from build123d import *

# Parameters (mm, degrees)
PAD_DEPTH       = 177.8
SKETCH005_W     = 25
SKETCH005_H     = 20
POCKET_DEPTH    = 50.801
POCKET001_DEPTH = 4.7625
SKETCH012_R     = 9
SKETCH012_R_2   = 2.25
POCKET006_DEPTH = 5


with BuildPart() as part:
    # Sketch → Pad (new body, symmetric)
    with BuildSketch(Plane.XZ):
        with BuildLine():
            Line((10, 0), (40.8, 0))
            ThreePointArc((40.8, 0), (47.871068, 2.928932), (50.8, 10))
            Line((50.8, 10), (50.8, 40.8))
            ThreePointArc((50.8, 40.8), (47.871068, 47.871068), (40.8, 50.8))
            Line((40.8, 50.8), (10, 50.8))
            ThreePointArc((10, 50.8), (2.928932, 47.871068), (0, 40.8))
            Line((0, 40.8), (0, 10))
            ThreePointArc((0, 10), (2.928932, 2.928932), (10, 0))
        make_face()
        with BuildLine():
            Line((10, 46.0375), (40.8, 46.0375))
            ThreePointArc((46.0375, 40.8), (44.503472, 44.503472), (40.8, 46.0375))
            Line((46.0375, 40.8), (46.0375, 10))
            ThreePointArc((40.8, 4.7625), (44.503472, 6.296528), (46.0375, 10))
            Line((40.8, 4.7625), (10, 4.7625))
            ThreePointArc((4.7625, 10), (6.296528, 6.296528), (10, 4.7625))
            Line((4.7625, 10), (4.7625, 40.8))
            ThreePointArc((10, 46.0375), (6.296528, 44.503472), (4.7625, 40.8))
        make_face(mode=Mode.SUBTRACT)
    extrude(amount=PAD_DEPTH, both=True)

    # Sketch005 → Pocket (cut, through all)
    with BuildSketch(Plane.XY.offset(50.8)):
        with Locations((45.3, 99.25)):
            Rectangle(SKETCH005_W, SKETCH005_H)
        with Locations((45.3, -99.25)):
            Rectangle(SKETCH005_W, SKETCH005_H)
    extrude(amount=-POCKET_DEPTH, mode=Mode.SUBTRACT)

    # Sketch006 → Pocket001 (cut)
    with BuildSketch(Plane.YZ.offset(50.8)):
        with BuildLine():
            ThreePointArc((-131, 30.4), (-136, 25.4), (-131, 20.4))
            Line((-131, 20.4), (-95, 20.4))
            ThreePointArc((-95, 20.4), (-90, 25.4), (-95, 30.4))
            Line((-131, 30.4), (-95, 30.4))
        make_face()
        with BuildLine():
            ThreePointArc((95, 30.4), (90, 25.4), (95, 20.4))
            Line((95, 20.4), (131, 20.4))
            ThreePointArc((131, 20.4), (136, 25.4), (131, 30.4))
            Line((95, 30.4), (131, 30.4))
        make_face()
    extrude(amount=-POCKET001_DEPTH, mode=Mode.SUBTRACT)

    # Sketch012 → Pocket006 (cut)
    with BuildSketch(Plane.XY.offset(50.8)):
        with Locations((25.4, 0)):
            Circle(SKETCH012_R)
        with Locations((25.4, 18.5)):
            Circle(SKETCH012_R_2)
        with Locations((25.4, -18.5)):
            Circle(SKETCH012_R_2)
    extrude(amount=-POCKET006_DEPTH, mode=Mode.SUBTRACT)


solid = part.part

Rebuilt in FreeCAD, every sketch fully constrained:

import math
import FreeCAD as App
import Part
import Sketcher
from FreeCAD import Vector
Q = App.Units.Quantity

doc = App.newDocument("Part")
params = doc.addObject("Spreadsheet::Sheet", "Params")
for row, (alias, value) in enumerate([
    ("sketch1_radius", "9.999999 mm"),
    ("sketch1_width", "30.8 mm"),
    ("pad1_length", "355.6 mm"),
    ("sketch2_width", "25 mm"),
    ("sketch2_height", "20 mm"),
    ("sketch3_radius", "5 mm"),
    ("sketch3_width", "36 mm"),
    ("pocket2_length", "4.7625 mm"),
    ("sketch4_diameter", "18 mm"),
    ("sketch4_diameter2", "4.5 mm"),
    ("pocket3_length", "5 mm"),
], start=1):
    params.set(f"A{row}", alias)
    params.set(f"B{row}", "=" + value)
    params.setAlias(f"B{row}", alias)

body = doc.addObject("PartDesign::Body", "Body")

sketch1 = doc.addObject("Sketcher::SketchObject", "Sketch")
body.addObject(sketch1)
sketch1.AttachmentSupport = (doc.XZ_Plane, [""])
sketch1.MapMode = "FlatFace"
sketch1.addGeometry(Part.LineSegment(Vector(10, 0, 0), Vector(40.8, 0, 0)), False)
sketch1.addGeometry(Part.ArcOfCircle(Part.Circle(Vector(40.800001, 9.999999, 0), Vector(0, 0, 1), 9.999999), math.radians(-90.000004), math.radians(0.000004)), False)
sketch1.addGeometry(Part.LineSegment(Vector(50.8, 10, 0), Vector(50.8, 40.8, 0)), False)
sketch1.addGeometry(Part.ArcOfCircle(Part.Circle(Vector(40.800001, 40.800001, 0), Vector(0, 0, 1), 9.999999), math.radians(-0.000004), math.radians(90.000004)), False)
sketch1.addGeometry(Part.LineSegment(Vector(40.8, 50.8, 0), Vector(10, 50.8, 0)), False)
sketch1.addGeometry(Part.ArcOfCircle(Part.Circle(Vector(9.999999, 40.800001, 0), Vector(0, 0, 1), 9.999999), math.radians(89.999996), math.radians(180.000004)), False)
sketch1.addGeometry(Part.LineSegment(Vector(0, 40.8, 0), Vector(0, 10, 0)), False)
sketch1.addGeometry(Part.ArcOfCircle(Part.Circle(Vector(9.999999, 9.999999, 0), Vector(0, 0, 1), 9.999999), math.radians(179.999996), math.radians(270.000004)), False)
sketch1.addGeometry(Part.ArcOfCircle(Part.Circle(Vector(9.999999, 40.800001, 0), Vector(0, 0, 1), 5.237499), math.radians(89.999991), math.radians(180.000009)), False)
sketch1.addGeometry(Part.LineSegment(Vector(10, 46.0375, 0), Vector(40.8, 46.0375, 0)), False)
sketch1.addGeometry(Part.ArcOfCircle(Part.Circle(Vector(40.800001, 40.800001, 0), Vector(0, 0, 1), 5.237499), math.radians(-0.000009), math.radians(90.000009)), False)
sketch1.addGeometry(Part.LineSegment(Vector(46.0375, 40.8, 0), Vector(46.0375, 10, 0)), False)
sketch1.addGeometry(Part.ArcOfCircle(Part.Circle(Vector(40.800001, 9.999999, 0), Vector(0, 0, 1), 5.237499), math.radians(-90.000009), math.radians(0.000009)), False)
sketch1.addGeometry(Part.LineSegment(Vector(40.8, 4.7625, 0), Vector(10, 4.7625, 0)), False)
sketch1.addGeometry(Part.ArcOfCircle(Part.Circle(Vector(9.999999, 9.999999, 0), Vector(0, 0, 1), 5.237499), math.radians(179.999991), math.radians(270.000009)), False)
sketch1.addGeometry(Part.LineSegment(Vector(4.7625, 10, 0), Vector(4.7625, 40.8, 0)), False)
sketch1.addConstraint(Sketcher.Constraint("Tangent", 0, 2, 1, 1))
sketch1.addConstraint(Sketcher.Constraint("Tangent", 1, 2, 2, 1))
sketch1.addConstraint(Sketcher.Constraint("Tangent", 2, 2, 3, 1))
sketch1.addConstraint(Sketcher.Constraint("Tangent", 3, 2, 4, 1))
sketch1.addConstraint(Sketcher.Constraint("Tangent", 4, 2, 5, 1))
sketch1.addConstraint(Sketcher.Constraint("Tangent", 5, 2, 6, 1))
sketch1.addConstraint(Sketcher.Constraint("Tangent", 6, 2, 7, 1))
sketch1.addConstraint(Sketcher.Constraint("Tangent", 7, 2, 0, 1))
sketch1.addConstraint(Sketcher.Constraint("Tangent", 8, 1, 9, 1))
sketch1.addConstraint(Sketcher.Constraint("Tangent", 9, 2, 10, 2))
sketch1.addConstraint(Sketcher.Constraint("Tangent", 10, 1, 11, 1))
sketch1.addConstraint(Sketcher.Constraint("Tangent", 11, 2, 12, 2))
sketch1.addConstraint(Sketcher.Constraint("Tangent", 12, 1, 13, 1))
sketch1.addConstraint(Sketcher.Constraint("Tangent", 13, 2, 14, 2))
sketch1.addConstraint(Sketcher.Constraint("Tangent", 14, 1, 15, 1))
sketch1.addConstraint(Sketcher.Constraint("Tangent", 15, 2, 8, 2))
sketch1.addConstraint(Sketcher.Constraint("Horizontal", 0))
sketch1.addConstraint(Sketcher.Constraint("Vertical", 2))
sketch1.addConstraint(Sketcher.Constraint("Horizontal", 4))
sketch1.addConstraint(Sketcher.Constraint("Vertical", 6))
sketch1.addConstraint(Sketcher.Constraint("Horizontal", 9))
sketch1.addConstraint(Sketcher.Constraint("Vertical", 11))
sketch1.addConstraint(Sketcher.Constraint("Horizontal", 13))
sketch1.addConstraint(Sketcher.Constraint("Vertical", 15))
sketch1.addConstraint(Sketcher.Constraint("Coincident", 8, 3, 5, 3))
sketch1.addConstraint(Sketcher.Constraint("Coincident", 10, 3, 3, 3))
sketch1.addConstraint(Sketcher.Constraint("Coincident", 12, 3, 1, 3))
sketch1.addConstraint(Sketcher.Constraint("Equal", 1, 3))
sketch1.addConstraint(Sketcher.Constraint("Equal", 3, 5))
sketch1.addConstraint(Sketcher.Constraint("Equal", 5, 7))
sketch1.addConstraint(Sketcher.Constraint("Equal", 12, 14))
sketch1.addConstraint(Sketcher.Constraint("PointOnObject", 0, 2, -1))
sketch1.addConstraint(Sketcher.Constraint("PointOnObject", 5, 2, -2))
sketch1.addConstraint(Sketcher.Constraint("Equal", 13, 2))
sketch1.addConstraint(Sketcher.Constraint("Radius", 1, Q("9.999999 mm")))
sketch1.addConstraint(Sketcher.Constraint("DistanceX", 0, 1, 0, 2, Q("30.8 mm")))
sketch1.addConstraint(Sketcher.Constraint("Radius", 8, Q("5.237499 mm")))
sketch1.setExpression("Constraints[34]", "Params.sketch1_radius")
sketch1.setExpression("Constraints[35]", "Params.sketch1_width")
pad1 = doc.addObject("PartDesign::Pad", "Pad")
body.addObject(pad1)
pad1.Profile = sketch1
pad1.setExpression("Length", "Params.pad1_length")
pad1.Midplane = True

sketch2 = doc.addObject("Sketcher::SketchObject", "Sketch001")
body.addObject(sketch2)
sketch2.AttachmentSupport = (doc.XY_Plane, [""])
sketch2.MapMode = "FlatFace"
sketch2.AttachmentOffset = App.Placement(Vector(0, 0, 50.8), App.Rotation())
sketch2.addGeometry(Part.LineSegment(Vector(32.8, 109.25, 0), Vector(32.8, 89.25, 0)), False)
sketch2.addGeometry(Part.LineSegment(Vector(32.8, 89.25, 0), Vector(57.8, 89.25, 0)), False)
sketch2.addGeometry(Part.LineSegment(Vector(57.8, 89.25, 0), Vector(57.8, 109.25, 0)), False)
sketch2.addGeometry(Part.LineSegment(Vector(57.8, 109.25, 0), Vector(32.8, 109.25, 0)), False)
sketch2.addGeometry(Part.LineSegment(Vector(32.8, -89.25, 0), Vector(32.8, -109.25, 0)), False)
sketch2.addGeometry(Part.LineSegment(Vector(32.8, -109.25, 0), Vector(57.8, -109.25, 0)), False)
sketch2.addGeometry(Part.LineSegment(Vector(57.8, -109.25, 0), Vector(57.8, -89.25, 0)), False)
sketch2.addGeometry(Part.LineSegment(Vector(57.8, -89.25, 0), Vector(32.8, -89.25, 0)), False)
sketch2.addConstraint(Sketcher.Constraint("Coincident", 0, 2, 1, 1))
sketch2.addConstraint(Sketcher.Constraint("Coincident", 1, 2, 2, 1))
sketch2.addConstraint(Sketcher.Constraint("Coincident", 2, 2, 3, 1))
sketch2.addConstraint(Sketcher.Constraint("Coincident", 3, 2, 0, 1))
sketch2.addConstraint(Sketcher.Constraint("Coincident", 4, 2, 5, 1))
sketch2.addConstraint(Sketcher.Constraint("Coincident", 5, 2, 6, 1))
sketch2.addConstraint(Sketcher.Constraint("Coincident", 6, 2, 7, 1))
sketch2.addConstraint(Sketcher.Constraint("Coincident", 7, 2, 4, 1))
sketch2.addConstraint(Sketcher.Constraint("Vertical", 0))
sketch2.addConstraint(Sketcher.Constraint("Horizontal", 1))
sketch2.addConstraint(Sketcher.Constraint("Vertical", 2))
sketch2.addConstraint(Sketcher.Constraint("Horizontal", 3))
sketch2.addConstraint(Sketcher.Constraint("Vertical", 4))
sketch2.addConstraint(Sketcher.Constraint("Horizontal", 5))
sketch2.addConstraint(Sketcher.Constraint("Vertical", 6))
sketch2.addConstraint(Sketcher.Constraint("Horizontal", 7))
sketch2.addConstraint(Sketcher.Constraint("Symmetric", 3, 2, 4, 2, -1))
sketch2.addConstraint(Sketcher.Constraint("Symmetric", 1, 2, 6, 2, -1))
sketch2.addConstraint(Sketcher.Constraint("DistanceX", 1, 1, 1, 2, Q("25 mm")))
sketch2.addConstraint(Sketcher.Constraint("DistanceY", 0, 2, 0, 1, Q("20 mm")))
sketch2.addConstraint(Sketcher.Constraint("DistanceX", -1, 1, 0, 2, Q("32.8 mm")))
sketch2.addConstraint(Sketcher.Constraint("DistanceY", 4, 2, 0, 2, Q("198.5 mm")))
sketch2.setExpression("Constraints[18]", "Params.sketch2_width")
sketch2.setExpression("Constraints[19]", "Params.sketch2_height")
pocket1 = doc.addObject("PartDesign::Pocket", "Pocket")
body.addObject(pocket1)
pocket1.Profile = sketch2
pocket1.Type = "ThroughAll"

sketch3 = doc.addObject("Sketcher::SketchObject", "Sketch002")
body.addObject(sketch3)
sketch3.AttachmentSupport = (doc.YZ_Plane, [""])
sketch3.MapMode = "FlatFace"
sketch3.AttachmentOffset = App.Placement(Vector(0, 0, 50.8), App.Rotation())
sketch3.addGeometry(Part.ArcOfCircle(Part.Circle(Vector(-131, 25.4, 0), Vector(0, 0, 1), 5), math.radians(90), math.radians(270)), False)
sketch3.addGeometry(Part.LineSegment(Vector(-131, 20.4, 0), Vector(-95, 20.4, 0)), False)
sketch3.addGeometry(Part.ArcOfCircle(Part.Circle(Vector(-95, 25.4, 0), Vector(0, 0, 1), 5), math.radians(-90), math.radians(90)), False)
sketch3.addGeometry(Part.LineSegment(Vector(-95, 30.4, 0), Vector(-131, 30.4, 0)), False)
sketch3.addGeometry(Part.ArcOfCircle(Part.Circle(Vector(95, 25.4, 0), Vector(0, 0, 1), 5), math.radians(90), math.radians(270)), False)
sketch3.addGeometry(Part.LineSegment(Vector(95, 20.4, 0), Vector(131, 20.4, 0)), False)
sketch3.addGeometry(Part.ArcOfCircle(Part.Circle(Vector(131, 25.4, 0), Vector(0, 0, 1), 5), math.radians(-90), math.radians(90)), False)
sketch3.addGeometry(Part.LineSegment(Vector(131, 30.4, 0), Vector(95, 30.4, 0)), False)
sketch3.addConstraint(Sketcher.Constraint("Tangent", 0, 2, 1, 1))
sketch3.addConstraint(Sketcher.Constraint("Tangent", 1, 2, 2, 1))
sketch3.addConstraint(Sketcher.Constraint("Tangent", 2, 2, 3, 1))
sketch3.addConstraint(Sketcher.Constraint("Tangent", 3, 2, 0, 1))
sketch3.addConstraint(Sketcher.Constraint("Tangent", 4, 2, 5, 1))
sketch3.addConstraint(Sketcher.Constraint("Tangent", 5, 2, 6, 1))
sketch3.addConstraint(Sketcher.Constraint("Tangent", 6, 2, 7, 1))
sketch3.addConstraint(Sketcher.Constraint("Tangent", 7, 2, 4, 1))
sketch3.addConstraint(Sketcher.Constraint("Horizontal", 1))
sketch3.addConstraint(Sketcher.Constraint("Horizontal", 3))
sketch3.addConstraint(Sketcher.Constraint("Horizontal", 5))
sketch3.addConstraint(Sketcher.Constraint("Horizontal", 7))
sketch3.addConstraint(Sketcher.Constraint("Equal", 2, 4))
sketch3.addConstraint(Sketcher.Constraint("Symmetric", 2, 3, 4, 3, -2))
sketch3.addConstraint(Sketcher.Constraint("Equal", 3, 5))
sketch3.addConstraint(Sketcher.Constraint("Radius", 0, Q("5 mm")))
sketch3.addConstraint(Sketcher.Constraint("DistanceX", 1, 1, 1, 2, Q("36 mm")))
sketch3.addConstraint(Sketcher.Constraint("DistanceX", 0, 3, -1, 1, Q("131 mm")))
sketch3.addConstraint(Sketcher.Constraint("DistanceY", -1, 1, 0, 3, Q("25.4 mm")))
sketch3.setExpression("Constraints[15]", "Params.sketch3_radius")
sketch3.setExpression("Constraints[16]", "Params.sketch3_width")
pocket2 = doc.addObject("PartDesign::Pocket", "Pocket001")
body.addObject(pocket2)
pocket2.Profile = sketch3
pocket2.setExpression("Length", "Params.pocket2_length")

sketch4 = doc.addObject("Sketcher::SketchObject", "Sketch003")
body.addObject(sketch4)
sketch4.AttachmentSupport = (doc.XY_Plane, [""])
sketch4.MapMode = "FlatFace"
sketch4.AttachmentOffset = App.Placement(Vector(0, 0, 50.8), App.Rotation())
sketch4.addGeometry(Part.Circle(Vector(25.4, 0, 0), Vector(0, 0, 1), 9), False)
sketch4.addGeometry(Part.Circle(Vector(25.4, 18.5, 0), Vector(0, 0, 1), 2.25), False)
sketch4.addGeometry(Part.Circle(Vector(25.4, -18.5, 0), Vector(0, 0, 1), 2.25), False)
sketch4.addConstraint(Sketcher.Constraint("Equal", 1, 2))
sketch4.addConstraint(Sketcher.Constraint("Symmetric", 1, 3, 2, 3, -1))
sketch4.addConstraint(Sketcher.Constraint("PointOnObject", 0, 3, -1))
sketch4.addConstraint(Sketcher.Constraint("Vertical", 0, 3, 1, 3))
sketch4.addConstraint(Sketcher.Constraint("Diameter", 0, Q("18 mm")))
sketch4.addConstraint(Sketcher.Constraint("Diameter", 1, Q("4.5 mm")))
sketch4.addConstraint(Sketcher.Constraint("DistanceY", 2, 3, 1, 3, Q("37 mm")))
sketch4.addConstraint(Sketcher.Constraint("DistanceX", -1, 1, 0, 3, Q("25.4 mm")))
sketch4.setExpression("Constraints[4]", "Params.sketch4_diameter")
sketch4.setExpression("Constraints[5]", "Params.sketch4_diameter2")
pocket3 = doc.addObject("PartDesign::Pocket", "Pocket002")
body.addObject(pocket3)
pocket3.Profile = sketch4
pocket3.setExpression("Length", "Params.pocket3_length")

doc.recompute()
